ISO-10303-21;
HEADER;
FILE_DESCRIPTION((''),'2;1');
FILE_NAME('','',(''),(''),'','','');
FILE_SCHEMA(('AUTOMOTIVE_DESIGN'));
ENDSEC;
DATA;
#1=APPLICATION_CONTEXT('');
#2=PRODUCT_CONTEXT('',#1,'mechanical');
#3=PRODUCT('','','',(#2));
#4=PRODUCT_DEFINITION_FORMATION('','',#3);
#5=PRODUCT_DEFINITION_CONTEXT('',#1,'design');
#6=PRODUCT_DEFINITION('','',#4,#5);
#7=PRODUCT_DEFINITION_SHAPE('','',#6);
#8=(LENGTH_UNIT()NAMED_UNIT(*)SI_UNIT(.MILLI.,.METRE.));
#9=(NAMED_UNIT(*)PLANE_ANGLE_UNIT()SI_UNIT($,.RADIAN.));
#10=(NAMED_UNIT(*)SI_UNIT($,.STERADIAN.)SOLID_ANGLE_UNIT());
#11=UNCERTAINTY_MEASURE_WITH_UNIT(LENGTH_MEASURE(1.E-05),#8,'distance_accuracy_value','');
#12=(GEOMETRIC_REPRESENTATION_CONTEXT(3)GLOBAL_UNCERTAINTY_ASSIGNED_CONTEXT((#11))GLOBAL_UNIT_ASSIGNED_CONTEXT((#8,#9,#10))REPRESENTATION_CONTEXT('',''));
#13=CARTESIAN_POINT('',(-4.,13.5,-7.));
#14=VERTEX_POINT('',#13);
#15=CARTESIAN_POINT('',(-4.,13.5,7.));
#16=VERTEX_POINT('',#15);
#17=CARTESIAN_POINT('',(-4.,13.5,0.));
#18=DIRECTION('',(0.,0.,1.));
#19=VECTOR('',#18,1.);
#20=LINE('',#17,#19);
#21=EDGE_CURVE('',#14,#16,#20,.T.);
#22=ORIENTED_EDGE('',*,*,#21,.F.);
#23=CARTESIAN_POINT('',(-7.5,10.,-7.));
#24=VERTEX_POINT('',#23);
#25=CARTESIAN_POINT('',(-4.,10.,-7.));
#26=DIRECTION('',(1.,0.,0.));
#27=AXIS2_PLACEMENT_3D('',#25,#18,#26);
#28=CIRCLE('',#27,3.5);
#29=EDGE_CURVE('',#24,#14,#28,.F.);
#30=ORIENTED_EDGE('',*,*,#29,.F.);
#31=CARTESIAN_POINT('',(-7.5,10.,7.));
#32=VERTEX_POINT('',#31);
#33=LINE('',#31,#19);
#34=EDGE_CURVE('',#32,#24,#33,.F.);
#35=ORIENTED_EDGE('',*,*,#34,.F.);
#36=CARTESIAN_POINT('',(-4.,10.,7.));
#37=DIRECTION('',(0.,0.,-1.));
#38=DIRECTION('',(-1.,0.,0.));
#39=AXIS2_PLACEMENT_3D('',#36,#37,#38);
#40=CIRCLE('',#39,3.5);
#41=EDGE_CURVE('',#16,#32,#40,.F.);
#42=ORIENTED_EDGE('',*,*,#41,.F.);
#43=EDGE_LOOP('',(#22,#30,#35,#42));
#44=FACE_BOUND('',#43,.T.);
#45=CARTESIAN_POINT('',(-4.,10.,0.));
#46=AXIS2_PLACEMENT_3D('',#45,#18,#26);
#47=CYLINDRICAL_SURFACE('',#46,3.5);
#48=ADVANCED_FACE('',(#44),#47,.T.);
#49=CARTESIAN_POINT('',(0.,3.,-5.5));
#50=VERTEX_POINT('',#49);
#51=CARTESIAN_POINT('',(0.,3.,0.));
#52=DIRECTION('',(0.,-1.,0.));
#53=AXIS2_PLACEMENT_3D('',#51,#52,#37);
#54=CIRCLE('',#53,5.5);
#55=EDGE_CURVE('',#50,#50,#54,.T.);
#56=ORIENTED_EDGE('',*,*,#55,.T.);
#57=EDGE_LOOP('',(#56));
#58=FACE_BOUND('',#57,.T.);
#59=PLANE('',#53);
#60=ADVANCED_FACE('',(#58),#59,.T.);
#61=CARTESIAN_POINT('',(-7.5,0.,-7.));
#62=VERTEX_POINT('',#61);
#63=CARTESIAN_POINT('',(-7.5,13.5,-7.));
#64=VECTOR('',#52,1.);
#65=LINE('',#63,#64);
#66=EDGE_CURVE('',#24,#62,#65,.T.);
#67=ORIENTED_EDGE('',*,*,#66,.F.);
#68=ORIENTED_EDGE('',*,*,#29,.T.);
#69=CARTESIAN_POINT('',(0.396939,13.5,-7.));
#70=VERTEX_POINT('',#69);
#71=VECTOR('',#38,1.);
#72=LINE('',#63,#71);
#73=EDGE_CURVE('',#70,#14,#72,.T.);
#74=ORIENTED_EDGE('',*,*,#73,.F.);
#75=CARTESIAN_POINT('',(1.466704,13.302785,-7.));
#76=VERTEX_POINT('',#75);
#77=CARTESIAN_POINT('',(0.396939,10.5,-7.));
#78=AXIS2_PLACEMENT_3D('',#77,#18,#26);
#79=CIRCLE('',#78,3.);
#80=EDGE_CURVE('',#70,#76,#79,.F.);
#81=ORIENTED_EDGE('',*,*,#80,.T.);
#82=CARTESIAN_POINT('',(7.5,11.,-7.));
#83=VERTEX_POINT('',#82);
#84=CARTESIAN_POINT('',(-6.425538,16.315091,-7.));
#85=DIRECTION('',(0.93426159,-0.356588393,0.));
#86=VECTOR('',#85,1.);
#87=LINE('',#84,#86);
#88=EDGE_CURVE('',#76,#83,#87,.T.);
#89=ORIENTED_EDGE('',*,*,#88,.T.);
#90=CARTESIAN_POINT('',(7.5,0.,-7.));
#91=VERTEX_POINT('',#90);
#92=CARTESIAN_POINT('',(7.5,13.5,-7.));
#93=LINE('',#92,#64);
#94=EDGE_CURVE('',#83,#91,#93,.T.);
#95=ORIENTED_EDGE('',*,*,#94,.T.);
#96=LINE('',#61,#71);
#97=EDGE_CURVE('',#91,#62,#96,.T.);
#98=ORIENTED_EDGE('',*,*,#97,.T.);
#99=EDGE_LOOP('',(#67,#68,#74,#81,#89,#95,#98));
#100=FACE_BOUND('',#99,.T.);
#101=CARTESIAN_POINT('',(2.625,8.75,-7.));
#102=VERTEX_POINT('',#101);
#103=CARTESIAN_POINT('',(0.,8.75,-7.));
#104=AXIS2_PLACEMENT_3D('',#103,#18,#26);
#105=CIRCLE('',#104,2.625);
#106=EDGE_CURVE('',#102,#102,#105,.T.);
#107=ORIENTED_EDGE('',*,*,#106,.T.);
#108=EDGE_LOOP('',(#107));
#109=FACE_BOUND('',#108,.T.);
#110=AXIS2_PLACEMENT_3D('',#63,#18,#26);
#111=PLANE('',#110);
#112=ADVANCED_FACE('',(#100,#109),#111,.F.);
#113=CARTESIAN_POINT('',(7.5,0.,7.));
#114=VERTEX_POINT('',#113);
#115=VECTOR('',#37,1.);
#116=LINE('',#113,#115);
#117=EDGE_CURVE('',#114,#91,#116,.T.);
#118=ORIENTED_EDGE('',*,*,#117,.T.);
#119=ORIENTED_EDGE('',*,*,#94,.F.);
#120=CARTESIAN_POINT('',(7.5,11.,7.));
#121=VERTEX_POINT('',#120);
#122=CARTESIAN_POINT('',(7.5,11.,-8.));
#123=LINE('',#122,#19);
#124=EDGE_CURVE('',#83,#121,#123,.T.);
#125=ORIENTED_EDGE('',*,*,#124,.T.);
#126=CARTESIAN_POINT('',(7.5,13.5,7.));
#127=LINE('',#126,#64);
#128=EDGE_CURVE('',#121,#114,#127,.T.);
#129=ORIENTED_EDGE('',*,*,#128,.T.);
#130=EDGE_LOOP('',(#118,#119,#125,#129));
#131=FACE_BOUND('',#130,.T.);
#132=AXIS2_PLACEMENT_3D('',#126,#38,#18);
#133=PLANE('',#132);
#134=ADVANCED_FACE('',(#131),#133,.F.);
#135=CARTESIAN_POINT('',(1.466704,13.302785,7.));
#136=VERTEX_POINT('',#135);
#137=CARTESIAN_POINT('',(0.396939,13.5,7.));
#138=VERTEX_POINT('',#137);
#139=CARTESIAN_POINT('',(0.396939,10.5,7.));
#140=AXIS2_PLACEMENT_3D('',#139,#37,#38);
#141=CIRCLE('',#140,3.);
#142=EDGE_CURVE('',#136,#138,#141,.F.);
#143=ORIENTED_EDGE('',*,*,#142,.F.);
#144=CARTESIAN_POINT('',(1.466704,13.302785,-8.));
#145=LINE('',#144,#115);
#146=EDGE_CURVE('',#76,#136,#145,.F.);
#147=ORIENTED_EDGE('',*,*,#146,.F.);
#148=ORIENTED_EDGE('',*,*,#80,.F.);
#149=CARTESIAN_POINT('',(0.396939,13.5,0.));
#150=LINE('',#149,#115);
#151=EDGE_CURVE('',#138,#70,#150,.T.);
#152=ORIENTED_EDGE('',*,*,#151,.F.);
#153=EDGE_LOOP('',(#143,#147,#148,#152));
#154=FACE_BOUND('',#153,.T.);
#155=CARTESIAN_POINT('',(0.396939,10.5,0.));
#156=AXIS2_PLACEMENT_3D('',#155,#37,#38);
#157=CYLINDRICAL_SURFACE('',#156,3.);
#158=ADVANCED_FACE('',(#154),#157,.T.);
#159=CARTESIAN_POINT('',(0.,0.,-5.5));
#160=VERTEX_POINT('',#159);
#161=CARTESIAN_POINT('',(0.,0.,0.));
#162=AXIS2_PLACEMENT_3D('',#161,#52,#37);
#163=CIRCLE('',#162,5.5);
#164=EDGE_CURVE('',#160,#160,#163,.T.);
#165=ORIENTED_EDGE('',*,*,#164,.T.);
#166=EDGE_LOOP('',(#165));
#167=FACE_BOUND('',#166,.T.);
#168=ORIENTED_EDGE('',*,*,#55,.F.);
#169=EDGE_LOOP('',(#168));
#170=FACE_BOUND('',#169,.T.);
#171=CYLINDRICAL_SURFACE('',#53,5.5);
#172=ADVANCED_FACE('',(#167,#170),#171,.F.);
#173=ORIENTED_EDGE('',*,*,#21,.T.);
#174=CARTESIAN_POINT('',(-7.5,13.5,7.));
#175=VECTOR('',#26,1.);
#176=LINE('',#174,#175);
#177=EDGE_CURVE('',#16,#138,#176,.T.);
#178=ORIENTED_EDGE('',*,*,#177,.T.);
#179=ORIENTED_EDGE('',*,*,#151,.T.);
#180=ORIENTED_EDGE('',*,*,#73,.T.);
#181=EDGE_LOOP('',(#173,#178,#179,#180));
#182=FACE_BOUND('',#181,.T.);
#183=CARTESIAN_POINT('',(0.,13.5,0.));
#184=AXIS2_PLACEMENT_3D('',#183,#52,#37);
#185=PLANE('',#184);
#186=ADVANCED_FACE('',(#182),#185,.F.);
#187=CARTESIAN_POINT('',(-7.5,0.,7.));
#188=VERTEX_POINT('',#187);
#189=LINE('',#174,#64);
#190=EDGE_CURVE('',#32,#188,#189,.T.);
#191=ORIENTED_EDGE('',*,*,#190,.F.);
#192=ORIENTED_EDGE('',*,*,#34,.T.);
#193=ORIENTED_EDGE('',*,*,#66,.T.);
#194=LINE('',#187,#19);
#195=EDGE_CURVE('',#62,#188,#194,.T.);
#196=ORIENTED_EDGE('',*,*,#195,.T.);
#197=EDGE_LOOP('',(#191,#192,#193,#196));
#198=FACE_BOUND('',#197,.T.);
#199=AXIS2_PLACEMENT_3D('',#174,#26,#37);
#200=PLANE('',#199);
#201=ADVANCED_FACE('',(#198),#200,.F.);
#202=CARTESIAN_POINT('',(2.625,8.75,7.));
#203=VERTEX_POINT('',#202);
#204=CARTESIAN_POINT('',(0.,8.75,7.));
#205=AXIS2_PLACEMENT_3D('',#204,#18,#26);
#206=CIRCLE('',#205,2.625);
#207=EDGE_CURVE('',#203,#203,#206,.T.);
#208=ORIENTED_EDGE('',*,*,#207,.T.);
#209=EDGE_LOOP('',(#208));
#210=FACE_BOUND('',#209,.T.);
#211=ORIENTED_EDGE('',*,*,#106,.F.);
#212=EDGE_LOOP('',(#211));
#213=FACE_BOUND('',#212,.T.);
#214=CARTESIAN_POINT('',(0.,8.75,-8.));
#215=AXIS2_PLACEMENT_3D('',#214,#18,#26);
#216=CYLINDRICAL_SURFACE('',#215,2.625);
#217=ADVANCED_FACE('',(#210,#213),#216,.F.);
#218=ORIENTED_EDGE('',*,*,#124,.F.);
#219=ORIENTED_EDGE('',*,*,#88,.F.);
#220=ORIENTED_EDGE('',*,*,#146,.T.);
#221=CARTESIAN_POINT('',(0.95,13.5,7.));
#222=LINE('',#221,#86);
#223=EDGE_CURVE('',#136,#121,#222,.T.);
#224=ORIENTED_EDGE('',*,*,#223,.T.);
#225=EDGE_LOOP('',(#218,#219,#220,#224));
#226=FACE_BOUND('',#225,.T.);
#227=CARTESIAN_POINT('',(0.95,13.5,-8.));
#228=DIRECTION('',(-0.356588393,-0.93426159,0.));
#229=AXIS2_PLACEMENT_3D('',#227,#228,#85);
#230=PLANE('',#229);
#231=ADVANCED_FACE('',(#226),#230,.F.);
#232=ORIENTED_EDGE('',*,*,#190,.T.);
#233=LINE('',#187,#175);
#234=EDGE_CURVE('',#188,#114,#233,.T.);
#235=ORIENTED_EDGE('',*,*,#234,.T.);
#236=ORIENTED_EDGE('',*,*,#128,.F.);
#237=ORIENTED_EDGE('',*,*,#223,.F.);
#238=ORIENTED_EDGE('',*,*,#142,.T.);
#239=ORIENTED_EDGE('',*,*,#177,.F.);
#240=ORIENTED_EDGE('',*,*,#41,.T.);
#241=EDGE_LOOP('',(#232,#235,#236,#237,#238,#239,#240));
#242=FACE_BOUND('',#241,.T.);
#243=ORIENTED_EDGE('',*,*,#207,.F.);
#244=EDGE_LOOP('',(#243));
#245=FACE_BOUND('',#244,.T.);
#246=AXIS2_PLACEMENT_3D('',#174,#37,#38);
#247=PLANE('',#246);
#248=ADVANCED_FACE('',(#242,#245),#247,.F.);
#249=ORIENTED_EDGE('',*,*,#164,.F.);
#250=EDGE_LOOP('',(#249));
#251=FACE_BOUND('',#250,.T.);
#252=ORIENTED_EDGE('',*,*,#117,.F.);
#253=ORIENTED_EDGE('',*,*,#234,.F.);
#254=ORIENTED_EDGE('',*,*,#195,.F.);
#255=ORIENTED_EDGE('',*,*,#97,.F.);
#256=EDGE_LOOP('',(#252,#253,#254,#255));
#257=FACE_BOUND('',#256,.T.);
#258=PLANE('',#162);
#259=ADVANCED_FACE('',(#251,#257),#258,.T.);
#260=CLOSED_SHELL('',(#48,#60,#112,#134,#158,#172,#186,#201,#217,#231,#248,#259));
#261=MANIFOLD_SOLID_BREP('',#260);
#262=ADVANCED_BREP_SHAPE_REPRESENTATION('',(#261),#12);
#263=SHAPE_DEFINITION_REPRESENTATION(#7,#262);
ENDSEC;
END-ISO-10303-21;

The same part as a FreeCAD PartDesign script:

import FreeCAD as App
import Part
import Sketcher
from FreeCAD import Vector


def edges_at(feature, points):
    """Names of the edges that pass closest to the given points."""
    edges = feature.Shape.Edges
    near = lambda p: min(range(len(edges)), key=lambda i: edges[i].distToShape(Part.Vertex(*p))[0])
    return sorted({f"Edge{near(p) + 1}" for p in points})


def add_polygon(sketch, points):
    """Adds a closed chain of lines whose ends are joined by coincident constraints."""
    first, n = sketch.GeometryCount, len(points)
    for a, b in zip(points, points[1:] + points[:1]):
        sketch.addGeometry(Part.LineSegment(App.Vector(*a, 0), App.Vector(*b, 0)), False)
    for i in range(n):
        sketch.addConstraint(Sketcher.Constraint("Coincident", first + i, 2, first + (i + 1) % n, 1))

doc = App.newDocument("Part")
params = doc.addObject("Spreadsheet::Sheet", "Params")
for row, (alias, value) in enumerate([
    ("sketch1_width", "15 mm"),
    ("sketch1_height", "14 mm"),
    ("pad1_length", "13.5 mm"),
    ("sketch2_diameter", "5.25 mm"),
    ("pocket1_length", "15 mm"),
    ("fillet_radius", "3.5 mm"),
    ("sketch3_height", "2.5 mm"),
    ("sketch3_width", "6.55 mm"),
    ("pocket2_length", "15 mm"),
    ("fillet2_radius", "3 mm"),
    ("sketch4_diameter", "11 mm"),
    ("pocket3_length", "3 mm"),
], start=1):
    params.set(f"A{row}", alias)
    params.set(f"B{row}", "=" + value)
    params.setAlias(f"B{row}", alias)

body = doc.addObject("PartDesign::Body", "Body")

sketch1 = body.newObject("Sketcher::SketchObject", "Sketch")
sketch1.AttachmentSupport = (doc.getObject("XZ_Plane"), [""])
sketch1.MapMode = "FlatFace"
add_polygon(sketch1, [(-8, -7), (-8, 7), (8, 7), (8, -7)])
sketch1.addConstraint([
    Sketcher.Constraint("Vertical", 0),
    Sketcher.Constraint("Horizontal", 1),
    Sketcher.Constraint("Vertical", 2),
    Sketcher.Constraint("Horizontal", 3),
    Sketcher.Constraint("Symmetric", 0, 2, 2, 2, -1, 1),
    Sketcher.Constraint("DistanceX", 1, 1, 1, 2, 15.0),
    Sketcher.Constraint("DistanceY", 0, 1, 0, 2, 14.0),
])
sketch1.setExpression("Constraints[9]", "Params.sketch1_width")
sketch1.setExpression("Constraints[10]", "Params.sketch1_height")
pad1 = body.newObject("PartDesign::Pad", "Pad")
pad1.Profile = sketch1
pad1.setExpression("Length", "Params.pad1_length")
pad1.Reversed = True

sketch2 = body.newObject("Sketcher::SketchObject", "Sketch001")
sketch2.AttachmentSupport = (doc.getObject("XY_Plane"), [""])
sketch2.MapMode = "FlatFace"
sketch2.AttachmentOffset = App.Placement(Vector(0, 0, 7), App.Rotation())
sketch2.addGeometry(Part.Circle(Vector(0, 8.8, 0), Vector(0, 0, 1), 2.6), False)
sketch2.addConstraint([
    Sketcher.Constraint("PointOnObject", 0, 3, -2),
    Sketcher.Constraint("Diameter", 0, 5.25),
    Sketcher.Constraint("DistanceY", -1, 1, 0, 3, 8.75),
])
sketch2.setExpression("Constraints[1]", "Params.sketch2_diameter")
pocket1 = body.newObject("PartDesign::Pocket", "Pocket")
pocket1.Profile = sketch2
pocket1.setExpression("Length", "Params.pocket1_length")
doc.recompute()

fillet = body.newObject("PartDesign::Fillet", "Fillet")
fillet.Base = (pocket1, edges_at(pocket1, [(-7.5, 13.5, 0)]))
fillet.setExpression("Radius", "Params.fillet_radius")

sketch3 = body.newObject("Sketcher::SketchObject", "Sketch002")
sketch3.AttachmentSupport = (doc.getObject("XY_Plane"), [""])
sketch3.MapMode = "FlatFace"
sketch3.AttachmentOffset = App.Placement(Vector(0, 0, 7), App.Rotation())
add_polygon(sketch3, [(0.9, 13.5), (7.5, 11), (7.5, 13.5)])
sketch3.addConstraint([
    Sketcher.Constraint("Vertical", 1),
    Sketcher.Constraint("Horizontal", 2),
    Sketcher.Constraint("DistanceY", 1, 1, 1, 2, 2.5),
    Sketcher.Constraint("DistanceY", -1, 1, 0, 2, 11.0),
    Sketcher.Constraint("DistanceX", 2, 2, 2, 1, 6.55),
    Sketcher.Constraint("DistanceX", -1, 1, 0, 2, 7.5),
])
sketch3.setExpression("Constraints[5]", "Params.sketch3_height")
sketch3.setExpression("Constraints[7]", "Params.sketch3_width")
pocket2 = body.newObject("PartDesign::Pocket", "Pocket001")
pocket2.Profile = sketch3
pocket2.setExpression("Length", "Params.pocket2_length")
doc.recompute()

fillet2 = body.newObject("PartDesign::Fillet", "Fillet001")
fillet2.Base = (pocket2, edges_at(pocket2, [(0.95, 13.5, 0)]))
fillet2.setExpression("Radius", "Params.fillet2_radius")

sketch4 = body.newObject("Sketcher::SketchObject", "Sketch003")
sketch4.AttachmentSupport = (doc.getObject("XZ_Plane"), [""])
sketch4.MapMode = "FlatFace"
sketch4.addGeometry(Part.Circle(Vector(0, 0, 0), Vector(0, 0, 1), 6), False)
sketch4.addConstraint([
    Sketcher.Constraint("Coincident", 0, 3, -1, 1),
    Sketcher.Constraint("Diameter", 0, 11.0),
])
sketch4.setExpression("Constraints[1]", "Params.sketch4_diameter")
pocket3 = body.newObject("PartDesign::Pocket", "Pocket002")
pocket3.Profile = sketch4
pocket3.setExpression("Length", "Params.pocket3_length")

doc.recompute()
